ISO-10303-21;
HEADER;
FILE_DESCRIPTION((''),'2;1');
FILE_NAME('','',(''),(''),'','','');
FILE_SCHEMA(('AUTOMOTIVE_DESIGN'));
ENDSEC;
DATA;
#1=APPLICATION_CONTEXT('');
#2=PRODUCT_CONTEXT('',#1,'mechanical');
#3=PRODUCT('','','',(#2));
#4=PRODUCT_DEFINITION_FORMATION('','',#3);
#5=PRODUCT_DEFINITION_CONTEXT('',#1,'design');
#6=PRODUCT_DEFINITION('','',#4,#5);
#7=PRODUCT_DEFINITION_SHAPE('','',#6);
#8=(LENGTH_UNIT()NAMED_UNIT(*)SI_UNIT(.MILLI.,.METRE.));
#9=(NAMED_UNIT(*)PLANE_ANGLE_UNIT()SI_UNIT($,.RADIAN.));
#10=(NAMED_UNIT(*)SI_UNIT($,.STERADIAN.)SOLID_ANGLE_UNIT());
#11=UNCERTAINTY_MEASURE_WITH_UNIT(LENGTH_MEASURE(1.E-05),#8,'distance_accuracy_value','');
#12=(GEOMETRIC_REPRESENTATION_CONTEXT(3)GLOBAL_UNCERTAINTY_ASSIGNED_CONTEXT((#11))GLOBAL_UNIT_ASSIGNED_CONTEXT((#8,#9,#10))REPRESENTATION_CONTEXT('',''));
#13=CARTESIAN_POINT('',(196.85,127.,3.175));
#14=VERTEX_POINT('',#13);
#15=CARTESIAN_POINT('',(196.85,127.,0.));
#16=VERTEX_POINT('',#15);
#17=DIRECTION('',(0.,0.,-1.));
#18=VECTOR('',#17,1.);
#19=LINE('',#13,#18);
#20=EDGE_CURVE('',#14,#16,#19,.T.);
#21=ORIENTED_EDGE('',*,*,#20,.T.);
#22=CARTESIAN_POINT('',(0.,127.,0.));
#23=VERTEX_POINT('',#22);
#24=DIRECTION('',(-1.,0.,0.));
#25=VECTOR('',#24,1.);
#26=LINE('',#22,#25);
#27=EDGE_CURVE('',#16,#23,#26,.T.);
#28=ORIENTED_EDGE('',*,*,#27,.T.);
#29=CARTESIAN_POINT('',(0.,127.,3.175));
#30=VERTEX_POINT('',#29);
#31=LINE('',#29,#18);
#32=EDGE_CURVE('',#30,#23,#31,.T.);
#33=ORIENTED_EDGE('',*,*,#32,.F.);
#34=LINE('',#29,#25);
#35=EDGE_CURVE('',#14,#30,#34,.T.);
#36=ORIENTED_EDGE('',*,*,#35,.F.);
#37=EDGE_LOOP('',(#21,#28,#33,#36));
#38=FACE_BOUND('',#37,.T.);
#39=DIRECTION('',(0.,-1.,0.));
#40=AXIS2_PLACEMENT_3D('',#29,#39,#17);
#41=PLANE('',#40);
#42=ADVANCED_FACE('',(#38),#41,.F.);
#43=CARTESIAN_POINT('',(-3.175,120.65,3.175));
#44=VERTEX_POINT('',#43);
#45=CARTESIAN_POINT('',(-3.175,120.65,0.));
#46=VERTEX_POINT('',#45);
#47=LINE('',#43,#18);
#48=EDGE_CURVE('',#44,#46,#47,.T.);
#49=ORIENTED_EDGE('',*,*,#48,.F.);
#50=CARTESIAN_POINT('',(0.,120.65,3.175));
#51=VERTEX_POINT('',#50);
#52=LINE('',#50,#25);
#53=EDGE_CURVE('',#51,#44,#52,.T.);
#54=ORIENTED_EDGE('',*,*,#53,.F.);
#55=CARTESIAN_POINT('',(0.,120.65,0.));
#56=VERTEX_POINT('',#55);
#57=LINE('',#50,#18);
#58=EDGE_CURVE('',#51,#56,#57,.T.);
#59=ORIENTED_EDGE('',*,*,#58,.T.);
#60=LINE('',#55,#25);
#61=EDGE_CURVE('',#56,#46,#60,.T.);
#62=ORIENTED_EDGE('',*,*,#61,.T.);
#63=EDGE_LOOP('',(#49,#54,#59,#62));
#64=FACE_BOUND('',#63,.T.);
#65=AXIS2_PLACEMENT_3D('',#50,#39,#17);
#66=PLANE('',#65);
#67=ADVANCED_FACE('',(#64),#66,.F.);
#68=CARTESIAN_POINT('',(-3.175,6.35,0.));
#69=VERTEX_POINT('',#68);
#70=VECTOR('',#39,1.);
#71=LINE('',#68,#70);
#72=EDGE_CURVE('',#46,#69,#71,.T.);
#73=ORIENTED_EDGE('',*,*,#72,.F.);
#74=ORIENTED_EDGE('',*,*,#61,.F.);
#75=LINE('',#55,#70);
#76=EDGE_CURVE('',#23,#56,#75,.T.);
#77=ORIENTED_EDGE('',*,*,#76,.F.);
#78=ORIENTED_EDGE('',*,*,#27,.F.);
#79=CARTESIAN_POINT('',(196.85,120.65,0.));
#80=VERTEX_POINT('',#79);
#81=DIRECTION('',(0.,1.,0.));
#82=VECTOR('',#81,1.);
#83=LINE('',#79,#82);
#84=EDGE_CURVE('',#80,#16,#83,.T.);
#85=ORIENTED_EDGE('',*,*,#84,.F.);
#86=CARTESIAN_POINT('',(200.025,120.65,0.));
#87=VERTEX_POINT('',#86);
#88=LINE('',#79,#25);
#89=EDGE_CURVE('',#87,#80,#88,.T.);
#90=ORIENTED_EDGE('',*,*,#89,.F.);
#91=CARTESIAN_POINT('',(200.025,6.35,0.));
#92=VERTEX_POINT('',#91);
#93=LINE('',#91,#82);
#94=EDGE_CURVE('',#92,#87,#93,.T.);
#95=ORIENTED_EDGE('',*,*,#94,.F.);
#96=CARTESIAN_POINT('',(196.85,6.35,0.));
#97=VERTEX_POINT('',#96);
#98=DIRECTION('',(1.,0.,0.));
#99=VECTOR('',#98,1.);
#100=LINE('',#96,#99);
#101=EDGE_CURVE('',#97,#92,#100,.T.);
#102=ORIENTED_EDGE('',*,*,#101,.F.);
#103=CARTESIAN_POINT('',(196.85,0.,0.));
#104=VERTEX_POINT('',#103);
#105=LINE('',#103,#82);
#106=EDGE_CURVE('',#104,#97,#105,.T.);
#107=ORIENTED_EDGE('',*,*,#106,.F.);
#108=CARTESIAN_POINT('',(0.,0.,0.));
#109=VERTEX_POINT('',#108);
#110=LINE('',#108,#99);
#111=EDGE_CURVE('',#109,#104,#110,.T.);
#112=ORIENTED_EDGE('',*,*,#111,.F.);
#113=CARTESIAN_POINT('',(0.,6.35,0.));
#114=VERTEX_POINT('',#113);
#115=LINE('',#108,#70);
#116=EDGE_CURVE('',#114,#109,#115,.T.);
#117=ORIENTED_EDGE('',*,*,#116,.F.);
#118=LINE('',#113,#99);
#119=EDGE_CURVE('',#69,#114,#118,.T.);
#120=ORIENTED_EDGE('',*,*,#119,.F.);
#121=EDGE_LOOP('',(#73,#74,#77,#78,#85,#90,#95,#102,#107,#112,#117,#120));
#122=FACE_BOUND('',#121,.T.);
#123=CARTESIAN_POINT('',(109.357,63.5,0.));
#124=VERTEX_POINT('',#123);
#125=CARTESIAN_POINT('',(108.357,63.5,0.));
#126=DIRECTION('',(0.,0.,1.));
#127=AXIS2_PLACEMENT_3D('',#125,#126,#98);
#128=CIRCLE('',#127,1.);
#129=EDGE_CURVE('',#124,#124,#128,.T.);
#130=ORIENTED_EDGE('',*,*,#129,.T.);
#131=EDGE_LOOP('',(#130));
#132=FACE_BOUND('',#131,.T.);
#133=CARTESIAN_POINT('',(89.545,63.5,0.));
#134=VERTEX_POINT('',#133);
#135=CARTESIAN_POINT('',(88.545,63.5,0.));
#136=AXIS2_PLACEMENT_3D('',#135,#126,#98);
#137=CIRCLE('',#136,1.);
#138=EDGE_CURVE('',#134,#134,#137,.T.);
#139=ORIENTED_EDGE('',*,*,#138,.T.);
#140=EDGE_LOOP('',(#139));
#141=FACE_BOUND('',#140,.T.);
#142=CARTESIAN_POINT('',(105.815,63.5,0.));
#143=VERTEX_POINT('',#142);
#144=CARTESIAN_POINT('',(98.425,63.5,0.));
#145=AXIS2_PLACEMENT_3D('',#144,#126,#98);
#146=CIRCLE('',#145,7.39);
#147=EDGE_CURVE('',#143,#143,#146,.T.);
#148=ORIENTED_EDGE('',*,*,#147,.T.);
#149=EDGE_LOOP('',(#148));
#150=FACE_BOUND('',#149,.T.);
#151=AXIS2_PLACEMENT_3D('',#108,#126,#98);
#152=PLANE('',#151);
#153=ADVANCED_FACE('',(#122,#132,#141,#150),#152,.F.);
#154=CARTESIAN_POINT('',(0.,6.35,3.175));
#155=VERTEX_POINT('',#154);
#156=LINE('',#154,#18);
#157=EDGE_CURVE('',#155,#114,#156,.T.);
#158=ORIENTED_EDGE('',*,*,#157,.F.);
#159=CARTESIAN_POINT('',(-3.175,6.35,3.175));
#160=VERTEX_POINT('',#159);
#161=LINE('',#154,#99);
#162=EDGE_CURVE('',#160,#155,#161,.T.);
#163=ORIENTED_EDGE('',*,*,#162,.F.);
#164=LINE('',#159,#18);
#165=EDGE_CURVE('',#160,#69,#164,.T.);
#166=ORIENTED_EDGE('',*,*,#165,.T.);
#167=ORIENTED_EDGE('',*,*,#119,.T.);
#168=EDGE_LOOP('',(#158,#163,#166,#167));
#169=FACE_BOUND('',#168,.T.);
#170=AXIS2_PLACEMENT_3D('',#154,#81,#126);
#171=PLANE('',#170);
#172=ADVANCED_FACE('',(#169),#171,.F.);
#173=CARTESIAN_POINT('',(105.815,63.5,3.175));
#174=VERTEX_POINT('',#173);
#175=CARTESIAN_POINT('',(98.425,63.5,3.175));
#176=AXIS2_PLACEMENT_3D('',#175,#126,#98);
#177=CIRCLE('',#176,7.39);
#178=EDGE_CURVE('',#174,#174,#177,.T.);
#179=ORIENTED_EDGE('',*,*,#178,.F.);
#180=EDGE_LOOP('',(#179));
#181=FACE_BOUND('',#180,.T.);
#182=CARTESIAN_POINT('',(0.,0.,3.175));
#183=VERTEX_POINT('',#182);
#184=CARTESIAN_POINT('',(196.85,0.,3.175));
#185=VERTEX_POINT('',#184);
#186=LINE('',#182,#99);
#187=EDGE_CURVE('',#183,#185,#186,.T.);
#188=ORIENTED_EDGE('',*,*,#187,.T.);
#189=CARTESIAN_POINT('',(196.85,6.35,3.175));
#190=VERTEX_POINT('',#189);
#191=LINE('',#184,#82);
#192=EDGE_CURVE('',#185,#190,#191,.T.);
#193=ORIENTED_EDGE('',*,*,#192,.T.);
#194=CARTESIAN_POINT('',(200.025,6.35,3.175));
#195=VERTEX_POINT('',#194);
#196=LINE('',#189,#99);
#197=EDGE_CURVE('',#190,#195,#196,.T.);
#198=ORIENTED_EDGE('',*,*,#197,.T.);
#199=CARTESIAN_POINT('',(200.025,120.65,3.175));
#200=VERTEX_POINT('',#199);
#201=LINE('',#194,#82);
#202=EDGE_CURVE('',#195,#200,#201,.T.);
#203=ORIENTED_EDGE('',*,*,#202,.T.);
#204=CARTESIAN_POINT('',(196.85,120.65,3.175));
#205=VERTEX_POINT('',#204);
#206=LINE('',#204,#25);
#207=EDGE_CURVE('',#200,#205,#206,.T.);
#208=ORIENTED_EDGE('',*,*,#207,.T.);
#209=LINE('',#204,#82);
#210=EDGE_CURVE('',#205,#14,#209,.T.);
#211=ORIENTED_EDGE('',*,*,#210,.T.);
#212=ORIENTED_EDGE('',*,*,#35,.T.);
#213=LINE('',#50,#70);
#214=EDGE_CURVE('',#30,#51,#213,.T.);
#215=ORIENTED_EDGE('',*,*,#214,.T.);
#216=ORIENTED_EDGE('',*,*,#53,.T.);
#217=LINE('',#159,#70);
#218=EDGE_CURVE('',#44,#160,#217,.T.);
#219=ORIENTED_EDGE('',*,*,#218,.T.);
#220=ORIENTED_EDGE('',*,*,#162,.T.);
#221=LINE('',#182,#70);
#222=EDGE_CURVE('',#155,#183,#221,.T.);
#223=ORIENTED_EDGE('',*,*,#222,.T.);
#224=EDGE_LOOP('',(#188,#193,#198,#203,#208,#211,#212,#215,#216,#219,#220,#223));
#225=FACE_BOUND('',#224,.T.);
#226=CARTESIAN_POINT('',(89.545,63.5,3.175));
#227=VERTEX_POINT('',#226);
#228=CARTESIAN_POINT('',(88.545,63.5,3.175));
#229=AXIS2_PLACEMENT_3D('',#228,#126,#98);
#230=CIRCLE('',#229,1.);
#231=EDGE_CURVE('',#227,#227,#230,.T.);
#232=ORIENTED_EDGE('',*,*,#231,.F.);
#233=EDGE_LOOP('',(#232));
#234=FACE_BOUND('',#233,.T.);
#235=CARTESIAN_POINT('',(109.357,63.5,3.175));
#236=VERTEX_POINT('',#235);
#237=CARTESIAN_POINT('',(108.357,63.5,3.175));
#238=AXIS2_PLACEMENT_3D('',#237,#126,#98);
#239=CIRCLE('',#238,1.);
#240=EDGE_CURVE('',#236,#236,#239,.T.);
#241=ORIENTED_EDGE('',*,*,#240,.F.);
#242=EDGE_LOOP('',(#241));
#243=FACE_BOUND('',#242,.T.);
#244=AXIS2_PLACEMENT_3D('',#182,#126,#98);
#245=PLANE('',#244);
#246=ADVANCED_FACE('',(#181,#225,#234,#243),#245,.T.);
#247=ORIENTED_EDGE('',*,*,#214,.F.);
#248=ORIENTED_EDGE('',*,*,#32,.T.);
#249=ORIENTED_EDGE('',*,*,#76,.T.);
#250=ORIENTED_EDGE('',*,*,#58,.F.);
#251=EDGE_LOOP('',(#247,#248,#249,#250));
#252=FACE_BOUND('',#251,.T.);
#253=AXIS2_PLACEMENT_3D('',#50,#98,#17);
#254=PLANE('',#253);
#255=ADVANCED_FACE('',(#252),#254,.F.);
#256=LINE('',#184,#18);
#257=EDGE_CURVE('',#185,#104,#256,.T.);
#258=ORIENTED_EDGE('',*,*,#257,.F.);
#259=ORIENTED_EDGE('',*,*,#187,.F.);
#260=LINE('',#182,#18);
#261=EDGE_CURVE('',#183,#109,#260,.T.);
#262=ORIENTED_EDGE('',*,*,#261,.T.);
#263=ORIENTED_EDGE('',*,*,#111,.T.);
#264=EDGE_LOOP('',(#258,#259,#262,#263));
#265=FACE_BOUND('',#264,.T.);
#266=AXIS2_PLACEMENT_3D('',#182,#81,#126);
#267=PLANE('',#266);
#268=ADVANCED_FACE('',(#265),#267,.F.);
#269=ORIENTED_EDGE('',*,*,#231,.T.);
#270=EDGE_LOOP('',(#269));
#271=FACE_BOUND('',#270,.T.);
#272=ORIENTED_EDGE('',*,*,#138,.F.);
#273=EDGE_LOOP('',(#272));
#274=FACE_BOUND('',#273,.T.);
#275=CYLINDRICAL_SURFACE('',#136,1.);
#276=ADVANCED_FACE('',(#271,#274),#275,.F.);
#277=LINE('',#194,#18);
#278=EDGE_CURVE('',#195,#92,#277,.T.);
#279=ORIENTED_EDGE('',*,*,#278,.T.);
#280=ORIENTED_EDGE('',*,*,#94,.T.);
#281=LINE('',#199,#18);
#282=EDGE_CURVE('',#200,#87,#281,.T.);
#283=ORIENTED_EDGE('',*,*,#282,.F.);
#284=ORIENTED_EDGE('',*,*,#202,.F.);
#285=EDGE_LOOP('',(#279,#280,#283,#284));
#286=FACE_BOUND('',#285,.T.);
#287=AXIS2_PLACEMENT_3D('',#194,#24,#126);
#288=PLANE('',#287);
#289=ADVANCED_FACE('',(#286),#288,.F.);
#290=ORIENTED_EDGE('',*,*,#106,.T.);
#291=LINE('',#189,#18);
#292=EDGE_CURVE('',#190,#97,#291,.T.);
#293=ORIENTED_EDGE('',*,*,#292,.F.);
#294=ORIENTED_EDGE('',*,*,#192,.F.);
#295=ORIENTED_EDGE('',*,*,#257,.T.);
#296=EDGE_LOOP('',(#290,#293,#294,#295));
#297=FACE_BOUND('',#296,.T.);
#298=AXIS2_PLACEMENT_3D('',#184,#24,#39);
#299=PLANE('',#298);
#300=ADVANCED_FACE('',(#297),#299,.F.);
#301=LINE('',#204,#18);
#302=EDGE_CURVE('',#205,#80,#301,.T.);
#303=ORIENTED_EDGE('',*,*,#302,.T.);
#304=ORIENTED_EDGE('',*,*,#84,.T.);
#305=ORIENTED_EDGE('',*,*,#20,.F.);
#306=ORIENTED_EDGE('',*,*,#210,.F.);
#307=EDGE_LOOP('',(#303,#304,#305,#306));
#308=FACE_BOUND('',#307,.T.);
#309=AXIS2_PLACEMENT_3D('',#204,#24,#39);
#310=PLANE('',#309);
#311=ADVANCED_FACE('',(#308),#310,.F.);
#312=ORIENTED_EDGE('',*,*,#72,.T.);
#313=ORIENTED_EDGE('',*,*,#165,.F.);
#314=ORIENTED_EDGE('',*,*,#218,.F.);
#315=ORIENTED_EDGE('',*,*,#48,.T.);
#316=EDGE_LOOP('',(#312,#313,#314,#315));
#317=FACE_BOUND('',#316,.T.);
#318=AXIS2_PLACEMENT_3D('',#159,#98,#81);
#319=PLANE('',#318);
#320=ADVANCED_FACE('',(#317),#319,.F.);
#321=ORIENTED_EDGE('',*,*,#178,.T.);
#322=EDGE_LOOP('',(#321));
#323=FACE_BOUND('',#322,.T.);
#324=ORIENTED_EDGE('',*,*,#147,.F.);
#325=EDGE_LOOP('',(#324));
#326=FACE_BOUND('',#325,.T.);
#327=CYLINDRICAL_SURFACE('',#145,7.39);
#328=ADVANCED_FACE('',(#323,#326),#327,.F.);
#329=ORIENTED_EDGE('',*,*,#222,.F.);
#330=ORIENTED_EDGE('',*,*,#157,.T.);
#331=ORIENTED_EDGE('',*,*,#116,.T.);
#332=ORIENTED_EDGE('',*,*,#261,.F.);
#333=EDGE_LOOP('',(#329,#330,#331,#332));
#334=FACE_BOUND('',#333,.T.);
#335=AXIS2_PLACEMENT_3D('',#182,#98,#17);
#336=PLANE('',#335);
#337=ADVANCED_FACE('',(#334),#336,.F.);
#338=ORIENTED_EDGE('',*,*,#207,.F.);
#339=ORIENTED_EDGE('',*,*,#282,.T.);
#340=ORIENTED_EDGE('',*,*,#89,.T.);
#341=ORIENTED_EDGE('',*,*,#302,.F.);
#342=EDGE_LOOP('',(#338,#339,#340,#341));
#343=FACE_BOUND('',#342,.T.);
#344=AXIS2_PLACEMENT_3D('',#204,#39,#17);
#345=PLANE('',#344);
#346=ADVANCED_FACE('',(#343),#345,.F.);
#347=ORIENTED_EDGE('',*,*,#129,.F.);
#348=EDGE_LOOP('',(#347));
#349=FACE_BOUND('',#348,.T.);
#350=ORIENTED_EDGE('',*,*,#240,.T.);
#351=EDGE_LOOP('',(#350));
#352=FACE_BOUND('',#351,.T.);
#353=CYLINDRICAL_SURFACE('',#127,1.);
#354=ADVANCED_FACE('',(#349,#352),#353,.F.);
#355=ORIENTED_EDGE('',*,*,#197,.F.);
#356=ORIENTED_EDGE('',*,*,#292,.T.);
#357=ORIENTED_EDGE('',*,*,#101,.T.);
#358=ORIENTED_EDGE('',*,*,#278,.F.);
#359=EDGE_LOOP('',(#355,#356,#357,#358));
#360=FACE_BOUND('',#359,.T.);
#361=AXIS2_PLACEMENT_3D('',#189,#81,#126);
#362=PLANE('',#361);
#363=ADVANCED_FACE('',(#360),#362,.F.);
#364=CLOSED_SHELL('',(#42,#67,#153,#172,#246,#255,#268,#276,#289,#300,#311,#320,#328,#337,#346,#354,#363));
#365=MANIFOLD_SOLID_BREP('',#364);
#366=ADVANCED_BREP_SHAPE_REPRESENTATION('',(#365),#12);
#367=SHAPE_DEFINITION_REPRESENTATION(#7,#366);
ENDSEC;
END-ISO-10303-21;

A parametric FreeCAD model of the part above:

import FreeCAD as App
import Part
import Sketcher
Q = App.Units.Quantity


def add_polygon(sketch, points):
    """Adds a closed chain of lines whose ends are joined by coincident constraints."""
    first, n = sketch.GeometryCount, len(points)
    for a, b in zip(points, points[1:] + points[:1]):
        sketch.addGeometry(Part.LineSegment(App.Vector(*a, 0), App.Vector(*b, 0)), False)
    for i in range(n):
        sketch.addConstraint(Sketcher.Constraint("Coincident", first + i, 2, first + (i + 1) % n, 1))

doc = App.newDocument("Part")
body = doc.addObject("PartDesign::Body", "Body")

# Sketch on XY plane
sketch1 = doc.addObject("Sketcher::SketchObject", "Sketch")
body.addObject(sketch1)
sketch1.AttachmentSupport = (doc.XY_Plane, [""])
sketch1.MapMode = "FlatFace"
add_polygon(sketch1, [(0, 127), (0, 120.65), (-3.175, 120.65), (-3.175, 6.35), (0, 6.35), (0, 0), (196.85, 0), (196.85, 6.35), (200.025, 6.35), (200.025, 120.65), (196.85, 120.65), (196.85, 127)])  # lines 0-11
sketch1.addConstraint([
    Sketcher.Constraint("Vertical", 0),
    Sketcher.Constraint("Horizontal", 1),
    Sketcher.Constraint("Vertical", 2),
    Sketcher.Constraint("Horizontal", 3),
    Sketcher.Constraint("Vertical", 4),
    Sketcher.Constraint("Horizontal", 5),
    Sketcher.Constraint("Vertical", 6),
    Sketcher.Constraint("Horizontal", 7),
    Sketcher.Constraint("Vertical", 8),
    Sketcher.Constraint("Horizontal", 9),
    Sketcher.Constraint("Vertical", 10),
    Sketcher.Constraint("Horizontal", 11),
    Sketcher.Constraint("Coincident", 4, 2, -1, 1),
    Sketcher.Constraint("PointOnObject", 0, 2, -2),
    Sketcher.Constraint("Horizontal", 3, 2, 6, 2),
    Sketcher.Constraint("Horizontal", 1, 2, 8, 2),
    Sketcher.Constraint("Vertical", 6, 2, 9, 2),
    Sketcher.Constraint("Equal", 3, 7),
    Sketcher.Constraint("Equal", 0, 4),
    Sketcher.Constraint("DistanceY", 2, 2, 2, 1, Q("4.5 in")),
    Sketcher.Constraint("DistanceY", -1, 1, 10, 2, Q("5 in")),
    Sketcher.Constraint("DistanceX", 2, 2, 7, 2, Q("8 in")),
    Sketcher.Constraint("DistanceX", 5, 1, 5, 2, Q("7.75 in")),
])
pad1 = doc.addObject("PartDesign::Pad", "Pad")
body.addObject(pad1)
pad1.Profile = sketch1
pad1.Length = Q("0.125 in")

# Sketch on XY plane
sketch2 = doc.addObject("Sketcher::SketchObject", "Sketch001")
body.addObject(sketch2)
sketch2.AttachmentSupport = (doc.XY_Plane, [""])
sketch2.MapMode = "FlatFace"
sketch2.AttachmentOffset = App.Placement(App.Vector(0, 0, 0.125 * 25.4), App.Rotation())
sketch2.addGeometry([
    Part.Circle(App.Vector(98.425, 63.5, 0), App.Vector(0, 0, 1), 7.39),
    Part.Circle(App.Vector(88.545, 63.5, 0), App.Vector(0, 0, 1), 1),
    Part.Circle(App.Vector(108.357, 63.5, 0), App.Vector(0, 0, 1), 1),
], False)
sketch2.addConstraint([
    Sketcher.Constraint("Equal", 1, 2),
    Sketcher.Constraint("Horizontal", 0, 3, 1, 3),
    Sketcher.Constraint("Horizontal", 1, 3, 2, 3),
    Sketcher.Constraint("DistanceY", -1, 1, 0, 3, Q("2.5 in")),
    Sketcher.Constraint("Diameter", 0, Q("14.78 mm")),
    Sketcher.Constraint("Diameter", 1, Q("2 mm")),
    Sketcher.Constraint("DistanceX", 1, 3, 2, 3, Q("0.78 in")),
    Sketcher.Constraint("DistanceX", -1, 1, 0, 3, Q("3.875 in")),
    Sketcher.Constraint("DistanceX", -1, 1, 1, 3, Q("88.545 mm")),
])
pocket1 = doc.addObject("PartDesign::Pocket", "Pocket")
body.addObject(pocket1)
pocket1.Profile = sketch2
pocket1.Type = "ThroughAll"

doc.recompute()
